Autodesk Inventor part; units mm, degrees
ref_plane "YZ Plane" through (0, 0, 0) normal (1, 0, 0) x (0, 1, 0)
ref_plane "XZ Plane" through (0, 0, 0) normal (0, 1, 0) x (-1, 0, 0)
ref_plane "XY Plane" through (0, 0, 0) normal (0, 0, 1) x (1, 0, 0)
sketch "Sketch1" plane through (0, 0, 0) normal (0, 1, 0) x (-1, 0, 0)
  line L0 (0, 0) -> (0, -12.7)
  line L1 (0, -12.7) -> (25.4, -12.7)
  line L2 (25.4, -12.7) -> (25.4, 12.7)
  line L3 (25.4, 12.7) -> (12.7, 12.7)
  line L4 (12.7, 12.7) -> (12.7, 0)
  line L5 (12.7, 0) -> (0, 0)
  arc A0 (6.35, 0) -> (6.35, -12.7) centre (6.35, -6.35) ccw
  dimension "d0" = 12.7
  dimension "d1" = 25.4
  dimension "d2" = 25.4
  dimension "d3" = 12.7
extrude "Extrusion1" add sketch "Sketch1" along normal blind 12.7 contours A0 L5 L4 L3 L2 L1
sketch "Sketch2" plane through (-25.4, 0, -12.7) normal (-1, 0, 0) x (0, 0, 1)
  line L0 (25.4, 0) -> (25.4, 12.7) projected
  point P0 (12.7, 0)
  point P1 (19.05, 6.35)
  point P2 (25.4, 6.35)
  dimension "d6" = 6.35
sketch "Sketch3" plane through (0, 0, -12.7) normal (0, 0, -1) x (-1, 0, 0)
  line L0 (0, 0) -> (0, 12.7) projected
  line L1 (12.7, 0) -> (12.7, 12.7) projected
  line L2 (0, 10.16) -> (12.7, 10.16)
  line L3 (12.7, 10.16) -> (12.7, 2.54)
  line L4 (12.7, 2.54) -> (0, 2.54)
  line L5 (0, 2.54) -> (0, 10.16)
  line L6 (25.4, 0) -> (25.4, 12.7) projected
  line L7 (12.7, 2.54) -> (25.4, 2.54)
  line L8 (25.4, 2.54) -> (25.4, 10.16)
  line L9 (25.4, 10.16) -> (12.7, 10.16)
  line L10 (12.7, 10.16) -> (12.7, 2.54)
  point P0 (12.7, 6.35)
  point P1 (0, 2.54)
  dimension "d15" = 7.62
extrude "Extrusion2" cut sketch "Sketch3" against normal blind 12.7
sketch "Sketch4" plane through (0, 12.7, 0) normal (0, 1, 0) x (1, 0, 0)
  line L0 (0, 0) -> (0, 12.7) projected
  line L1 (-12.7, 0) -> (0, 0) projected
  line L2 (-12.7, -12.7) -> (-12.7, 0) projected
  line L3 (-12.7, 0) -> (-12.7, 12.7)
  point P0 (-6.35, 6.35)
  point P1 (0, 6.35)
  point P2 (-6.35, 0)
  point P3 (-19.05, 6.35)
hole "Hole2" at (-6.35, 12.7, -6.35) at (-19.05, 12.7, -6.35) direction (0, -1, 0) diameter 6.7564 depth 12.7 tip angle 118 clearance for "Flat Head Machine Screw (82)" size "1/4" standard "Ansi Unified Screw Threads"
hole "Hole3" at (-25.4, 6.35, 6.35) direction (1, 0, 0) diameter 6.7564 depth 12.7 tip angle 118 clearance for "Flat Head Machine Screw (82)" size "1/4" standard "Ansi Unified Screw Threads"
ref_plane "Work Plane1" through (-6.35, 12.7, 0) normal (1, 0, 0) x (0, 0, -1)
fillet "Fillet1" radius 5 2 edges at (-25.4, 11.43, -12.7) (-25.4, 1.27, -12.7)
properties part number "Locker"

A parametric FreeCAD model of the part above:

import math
import FreeCAD as App
import Part
import Sketcher
from FreeCAD import Vector
Q = App.Units.Quantity


def edges_at(feature, points):
    """Names of the edges that pass closest to the given points."""
    edges = feature.Shape.Edges
    near = lambda p: min(range(len(edges)), key=lambda i: edges[i].distToShape(Part.Vertex(*p))[0])
    return sorted({f"Edge{near(p) + 1}" for p in points})


def add_polygon(sketch, points):
    """Adds a closed chain of lines whose ends are joined by coincident constraints."""
    first, n = sketch.GeometryCount, len(points)
    for a, b in zip(points, points[1:] + points[:1]):
        sketch.addGeometry(Part.LineSegment(App.Vector(*a, 0), App.Vector(*b, 0)), False)
    for i in range(n):
        sketch.addConstraint(Sketcher.Constraint("Coincident", first + i, 2, first + (i + 1) % n, 1))

doc = App.newDocument("Part")
body = doc.addObject("PartDesign::Body", "Body")

# Sketch on XZ plane
sketch1 = body.newObject("Sketcher::SketchObject", "Sketch")
sketch1.AttachmentSupport = (doc.getObject("XZ_Plane"), [""])
sketch1.MapMode = "FlatFace"
sketch1.addGeometry(Part.ArcOfCircle(Part.Circle(Vector(-6.35, -6.35, 0), Vector(0, 0, 1), 6.35), math.radians(-90), math.radians(90)), False)
sketch1.addGeometry(Part.LineSegment(Vector(-6.35, -12.7, 0), Vector(-25.4, -12.7, 0)), False)
sketch1.addGeometry(Part.LineSegment(Vector(-25.4, -12.7, 0), Vector(-25.4, 12.7, 0)), False)
sketch1.addGeometry(Part.LineSegment(Vector(-25.4, 12.7, 0), Vector(-12.7, 12.7, 0)), False)
sketch1.addGeometry(Part.LineSegment(Vector(-12.7, 12.7, 0), Vector(-12.7, 0, 0)), False)
sketch1.addGeometry(Part.LineSegment(Vector(-12.7, 0, 0), Vector(-6.35, 0, 0)), False)
sketch1.addConstraint(Sketcher.Constraint("Tangent", 0, 1, 1, 1))
sketch1.addConstraint(Sketcher.Constraint("Coincident", 1, 2, 2, 1))
sketch1.addConstraint(Sketcher.Constraint("Coincident", 2, 2, 3, 1))
sketch1.addConstraint(Sketcher.Constraint("Coincident", 3, 2, 4, 1))
sketch1.addConstraint(Sketcher.Constraint("Coincident", 4, 2, 5, 1))
sketch1.addConstraint(Sketcher.Constraint("Tangent", 5, 2, 0, 2))
sketch1.addConstraint(Sketcher.Constraint("Horizontal", 1))
sketch1.addConstraint(Sketcher.Constraint("Vertical", 2))
sketch1.addConstraint(Sketcher.Constraint("Horizontal", 3))
sketch1.addConstraint(Sketcher.Constraint("Vertical", 4))
sketch1.addConstraint(Sketcher.Constraint("Horizontal", 5))
sketch1.addConstraint(Sketcher.Constraint("PointOnObject", 4, 2, -1))
sketch1.addConstraint(Sketcher.Constraint("Equal", 3, 4))
sketch1.addConstraint(Sketcher.Constraint("DistanceY", 2, 1, 2, 2, Q("1 in")))
sketch1.addConstraint(Sketcher.Constraint("Radius", 0, Q("0.25 in")))
sketch1.addConstraint(Sketcher.Constraint("DistanceX", 1, 2, -1, 1, Q("1 in")))
sketch1.addConstraint(Sketcher.Constraint("DistanceX", 1, 2, 1, 1, Q("0.75 in")))
pad1 = body.newObject("PartDesign::Pad", "Pad")
pad1.Profile = sketch1
pad1.Length = Q("0.5 in")
pad1.Reversed = True

# Sketch on XY plane
sketch2 = body.newObject("Sketcher::SketchObject", "Sketch001")
sketch2.AttachmentSupport = (doc.getObject("XY_Plane"), [""])
sketch2.MapMode = "FlatFace"
sketch2.AttachmentOffset = App.Placement(Vector(0, 0, -0.5 * 25.4), App.Rotation())
add_polygon(sketch2, [(0, 10.16), (0, 2.54), (-25.4, 2.54), (-25.4, 10.16)])  # lines 0-3
sketch2.addConstraint(Sketcher.Constraint("Vertical", 0))
sketch2.addConstraint(Sketcher.Constraint("Horizontal", 1))
sketch2.addConstraint(Sketcher.Constraint("Vertical", 2))
sketch2.addConstraint(Sketcher.Constraint("Horizontal", 3))
sketch2.addConstraint(Sketcher.Constraint("PointOnObject", 0, 2, -2))
sketch2.addConstraint(Sketcher.Constraint("DistanceY", 0, 2, 0, 1, Q("0.3 in")))
sketch2.addConstraint(Sketcher.Constraint("DistanceX", 1, 2, 1, 1, Q("1 in")))
sketch2.addConstraint(Sketcher.Constraint("DistanceY", -1, 1, 0, 2, Q("0.1 in")))
pocket1 = body.newObject("PartDesign::Pocket", "Pocket")
pocket1.Profile = sketch2
pocket1.Length = Q("0.5 in")
pocket1.Reversed = True

# Sketch on XZ plane
sketch3 = body.newObject("Sketcher::SketchObject", "Sketch002")
sketch3.AttachmentSupport = (doc.getObject("XZ_Plane"), [""])
sketch3.MapMode = "FlatFace"
sketch3.AttachmentOffset = App.Placement(Vector(0, 0, -0.5 * 25.4), App.Rotation())
sketch3.addGeometry(Part.Circle(Vector(-6.35, -6.35, 0), Vector(0, 0, 1), 3.3782), False)
sketch3.addGeometry(Part.Circle(Vector(-19.05, -6.35, 0), Vector(0, 0, 1), 3.3782), False)
sketch3.addConstraint(Sketcher.Constraint("Equal", 0, 1))
sketch3.addConstraint(Sketcher.Constraint("Horizontal", 0, 3, 1, 3))
sketch3.addConstraint(Sketcher.Constraint("Diameter", 0, Q("0.266 in")))
sketch3.addConstraint(Sketcher.Constraint("DistanceX", 1, 3, 0, 3, Q("0.5 in")))
sketch3.addConstraint(Sketcher.Constraint("DistanceX", 0, 3, -1, 1, Q("0.25 in")))
sketch3.addConstraint(Sketcher.Constraint("DistanceY", 0, 3, -1, 1, Q("0.25 in")))
doc.recompute()
hole = body.newObject("PartDesign::Hole", "Hole")
hole.Profile = sketch3
hole.ThreadType = "None"
hole.Diameter = Q("0.266 in")
hole.DepthType = "Dimension"
hole.Depth = Q("0.5 in")
hole.DrillPoint = "Angled"
hole.DrillPointAngle = 118
hole.Reversed = True

# Sketch on YZ plane
sketch4 = body.newObject("Sketcher::SketchObject", "Sketch003")
sketch4.AttachmentSupport = (doc.getObject("YZ_Plane"), [""])
sketch4.MapMode = "FlatFace"
sketch4.AttachmentOffset = App.Placement(Vector(0, 0, -1 * 25.4), App.Rotation())
sketch4.addGeometry(Part.Circle(Vector(6.35, 6.35, 0), Vector(0, 0, 1), 3.3782), False)
sketch4.addConstraint(Sketcher.Constraint("Diameter", 0, Q("0.266 in")))
sketch4.addConstraint(Sketcher.Constraint("DistanceX", -1, 1, 0, 3, Q("0.25 in")))
sketch4.addConstraint(Sketcher.Constraint("DistanceY", -1, 1, 0, 3, Q("0.25 in")))
doc.recompute()
hole2 = body.newObject("PartDesign::Hole", "Hole001")
hole2.Profile = sketch4
hole2.ThreadType = "None"
hole2.Diameter = Q("0.266 in")
hole2.DepthType = "Dimension"
hole2.Depth = Q("0.5 in")
hole2.DrillPoint = "Angled"
hole2.DrillPointAngle = 118
hole2.Reversed = True
doc.recompute()

fillet = body.newObject("PartDesign::Fillet", "Fillet")
fillet.Base = (hole2, edges_at(hole2, [(-25.4, 11.43, -12.7), (-25.4, 1.27, -12.7)]))
fillet.Radius = 5

doc.recompute()
